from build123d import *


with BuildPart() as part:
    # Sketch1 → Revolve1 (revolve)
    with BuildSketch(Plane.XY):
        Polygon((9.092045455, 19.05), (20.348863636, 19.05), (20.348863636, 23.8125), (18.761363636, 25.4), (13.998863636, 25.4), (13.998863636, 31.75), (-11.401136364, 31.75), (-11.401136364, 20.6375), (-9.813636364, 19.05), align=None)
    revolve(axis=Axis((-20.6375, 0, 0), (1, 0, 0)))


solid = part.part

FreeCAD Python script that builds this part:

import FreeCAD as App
import Part
import Sketcher
Q = App.Units.Quantity


def add_polygon(sketch, points):
    """Adds a closed chain of lines whose ends are joined by coincident constraints."""
    first, n = sketch.GeometryCount, len(points)
    for a, b in zip(points, points[1:] + points[:1]):
        sketch.addGeometry(Part.LineSegment(App.Vector(*a, 0), App.Vector(*b, 0)), False)
    for i in range(n):
        sketch.addConstraint(Sketcher.Constraint("Coincident", first + i, 2, first + (i + 1) % n, 1))

doc = App.newDocument("Part")
body = doc.addObject("PartDesign::Body", "Body")

# Sketch on XY plane
sketch1 = body.newObject("Sketcher::SketchObject", "Sketch")
sketch1.AttachmentSupport = (doc.getObject("XY_Plane"), [""])
sketch1.MapMode = "FlatFace"
add_polygon(sketch1, [(20.3, 19.1), (20.3, 23.8), (18.8, 25.4), (14, 25.4), (14, 31.8), (-11.4, 31.8), (-11.4, 20.6), (-9.8, 19.1)])  # lines 0-7
sketch1.addConstraint([
    Sketcher.Constraint("Vertical", 0),
    Sketcher.Constraint("Horizontal", 2),
    Sketcher.Constraint("Vertical", 3),
    Sketcher.Constraint("Horizontal", 4),
    Sketcher.Constraint("Vertical", 5),
    Sketcher.Constraint("Horizontal", 7),
    Sketcher.Constraint("Parallel", 1, 6),
    Sketcher.Constraint("Equal", 2, 0),
    Sketcher.Constraint("Equal", 1, 6),
    Sketcher.Constraint("DistanceX", 4, 2, 4, 1, Q("1 in")),
    Sketcher.Constraint("DistanceY", -1, 1, 1, 2, Q("1 in")),
    Sketcher.Constraint("Angle", 1, Q("135 deg")),
    Sketcher.Constraint("DistanceY", 3, 1, 3, 2, Q("0.25 in")),
    Sketcher.Constraint("DistanceY", 6, 2, 4, 2, Q("0.5 in")),
    Sketcher.Constraint("DistanceX", 2, 2, 2, 1, Q("0.1875 in")),
    Sketcher.Constraint("DistanceX", -1, 1, 0, 2, Q("20.348864 mm")),
])
revolution = body.newObject("PartDesign::Revolution", "Revolution")
revolution.Profile = sketch1
revolution.ReferenceAxis = (sketch1, ["H_Axis"])
revolution.Angle = 360

doc.recompute()
